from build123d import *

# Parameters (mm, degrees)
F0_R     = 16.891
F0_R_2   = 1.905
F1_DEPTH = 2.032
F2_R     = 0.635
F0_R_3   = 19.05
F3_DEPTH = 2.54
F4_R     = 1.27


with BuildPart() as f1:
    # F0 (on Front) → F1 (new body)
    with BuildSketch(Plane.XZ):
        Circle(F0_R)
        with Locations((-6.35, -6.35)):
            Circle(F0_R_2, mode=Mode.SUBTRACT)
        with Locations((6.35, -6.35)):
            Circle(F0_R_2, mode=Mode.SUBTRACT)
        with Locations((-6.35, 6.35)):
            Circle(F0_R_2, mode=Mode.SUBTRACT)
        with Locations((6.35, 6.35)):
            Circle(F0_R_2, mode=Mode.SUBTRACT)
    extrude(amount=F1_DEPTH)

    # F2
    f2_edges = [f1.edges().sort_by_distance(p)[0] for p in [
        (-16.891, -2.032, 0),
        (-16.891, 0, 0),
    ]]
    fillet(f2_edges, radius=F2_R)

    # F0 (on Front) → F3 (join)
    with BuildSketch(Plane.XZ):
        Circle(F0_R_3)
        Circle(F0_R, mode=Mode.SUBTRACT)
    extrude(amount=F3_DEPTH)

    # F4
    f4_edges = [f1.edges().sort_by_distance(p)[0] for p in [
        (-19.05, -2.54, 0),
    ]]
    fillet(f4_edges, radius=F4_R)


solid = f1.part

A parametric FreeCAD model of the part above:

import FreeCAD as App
import Part
import Sketcher

V = App.Vector
Q = App.Units.Quantity


def edges_at(feature, points):
    """Names of the edges that pass closest to the given points."""
    edges = feature.Shape.Edges
    near = lambda p: min(range(len(edges)), key=lambda i: edges[i].distToShape(Part.Vertex(*p))[0])
    return sorted({f"Edge{near(p) + 1}" for p in points})

doc = App.newDocument("Part")
body = doc.addObject("PartDesign::Body", "Body")

# Sketch on XZ plane
sketch1 = body.newObject("Sketcher::SketchObject", "Sketch")
sketch1.AttachmentSupport = (doc.getObject("XZ_Plane"), [""])
sketch1.MapMode = "FlatFace"
sketch1.addGeometry([
    Part.Circle(V(0, 0, 0), V(0, 0, 1), 16.891),  # 0
    Part.Circle(V(-6.35, -6.35, 0), V(0, 0, 1), 1.905),  # 1
    Part.Circle(V(6.35, -6.35, 0), V(0, 0, 1), 1.905),  # 2
    Part.Circle(V(-6.35, 6.35, 0), V(0, 0, 1), 1.905),  # 3
    Part.Circle(V(6.35, 6.35, 0), V(0, 0, 1), 1.905),  # 4
], False)
sketch1.addConstraint([
    Sketcher.Constraint("Coincident", 0, 3, -1, 1),
    Sketcher.Constraint("Equal", 1, 2),
    Sketcher.Constraint("Equal", 2, 3),
    Sketcher.Constraint("Equal", 3, 4),
    Sketcher.Constraint("Symmetric", 2, 3, 3, 3, -1, 1),
    Sketcher.Constraint("Symmetric", 1, 3, 4, 3, -1, 1),
    Sketcher.Constraint("Symmetric", 1, 3, 2, 3, -2),
    Sketcher.Constraint("Diameter", 0, Q("1.33 in")),
    Sketcher.Constraint("Diameter", 1, Q("0.15 in")),
    Sketcher.Constraint("DistanceX", 1, 3, 2, 3, Q("0.5 in")),
    Sketcher.Constraint("DistanceY", 1, 3, 3, 3, Q("0.5 in")),
])
pad1 = body.newObject("PartDesign::Pad", "Pad")
pad1.Profile = sketch1
pad1.Length = Q("0.08 in")
doc.recompute()

fillet = body.newObject("PartDesign::Fillet", "Fillet")
fillet.Base = (pad1, edges_at(pad1, [(-16.891, -2.032, 0), (-16.891, 0, 0)]))
fillet.Radius = Q("0.025 in")

# Sketch on XZ plane
sketch2 = body.newObject("Sketcher::SketchObject", "Sketch001")
sketch2.AttachmentSupport = (doc.getObject("XZ_Plane"), [""])
sketch2.MapMode = "FlatFace"
sketch2.addGeometry([
    Part.Circle(V(0, 0, 0), V(0, 0, 1), 19.05),
    Part.Circle(V(0, 0, 0), V(0, 0, 1), 16.891),
], False)
sketch2.addConstraint([
    Sketcher.Constraint("Coincident", 0, 3, -1, 1),
    Sketcher.Constraint("Coincident", 1, 3, -1, 1),
    Sketcher.Constraint("Diameter", 0, Q("1.5 in")),
    Sketcher.Constraint("Diameter", 1, Q("1.33 in")),
])
pad2 = body.newObject("PartDesign::Pad", "Pad001")
pad2.Profile = sketch2
pad2.Length = Q("0.1 in")
doc.recompute()

fillet2 = body.newObject("PartDesign::Fillet", "Fillet001")
fillet2.Base = (pad2, edges_at(pad2, [(-19.05, -2.54, 0)]))
fillet2.Radius = Q("0.05 in")

doc.recompute()
